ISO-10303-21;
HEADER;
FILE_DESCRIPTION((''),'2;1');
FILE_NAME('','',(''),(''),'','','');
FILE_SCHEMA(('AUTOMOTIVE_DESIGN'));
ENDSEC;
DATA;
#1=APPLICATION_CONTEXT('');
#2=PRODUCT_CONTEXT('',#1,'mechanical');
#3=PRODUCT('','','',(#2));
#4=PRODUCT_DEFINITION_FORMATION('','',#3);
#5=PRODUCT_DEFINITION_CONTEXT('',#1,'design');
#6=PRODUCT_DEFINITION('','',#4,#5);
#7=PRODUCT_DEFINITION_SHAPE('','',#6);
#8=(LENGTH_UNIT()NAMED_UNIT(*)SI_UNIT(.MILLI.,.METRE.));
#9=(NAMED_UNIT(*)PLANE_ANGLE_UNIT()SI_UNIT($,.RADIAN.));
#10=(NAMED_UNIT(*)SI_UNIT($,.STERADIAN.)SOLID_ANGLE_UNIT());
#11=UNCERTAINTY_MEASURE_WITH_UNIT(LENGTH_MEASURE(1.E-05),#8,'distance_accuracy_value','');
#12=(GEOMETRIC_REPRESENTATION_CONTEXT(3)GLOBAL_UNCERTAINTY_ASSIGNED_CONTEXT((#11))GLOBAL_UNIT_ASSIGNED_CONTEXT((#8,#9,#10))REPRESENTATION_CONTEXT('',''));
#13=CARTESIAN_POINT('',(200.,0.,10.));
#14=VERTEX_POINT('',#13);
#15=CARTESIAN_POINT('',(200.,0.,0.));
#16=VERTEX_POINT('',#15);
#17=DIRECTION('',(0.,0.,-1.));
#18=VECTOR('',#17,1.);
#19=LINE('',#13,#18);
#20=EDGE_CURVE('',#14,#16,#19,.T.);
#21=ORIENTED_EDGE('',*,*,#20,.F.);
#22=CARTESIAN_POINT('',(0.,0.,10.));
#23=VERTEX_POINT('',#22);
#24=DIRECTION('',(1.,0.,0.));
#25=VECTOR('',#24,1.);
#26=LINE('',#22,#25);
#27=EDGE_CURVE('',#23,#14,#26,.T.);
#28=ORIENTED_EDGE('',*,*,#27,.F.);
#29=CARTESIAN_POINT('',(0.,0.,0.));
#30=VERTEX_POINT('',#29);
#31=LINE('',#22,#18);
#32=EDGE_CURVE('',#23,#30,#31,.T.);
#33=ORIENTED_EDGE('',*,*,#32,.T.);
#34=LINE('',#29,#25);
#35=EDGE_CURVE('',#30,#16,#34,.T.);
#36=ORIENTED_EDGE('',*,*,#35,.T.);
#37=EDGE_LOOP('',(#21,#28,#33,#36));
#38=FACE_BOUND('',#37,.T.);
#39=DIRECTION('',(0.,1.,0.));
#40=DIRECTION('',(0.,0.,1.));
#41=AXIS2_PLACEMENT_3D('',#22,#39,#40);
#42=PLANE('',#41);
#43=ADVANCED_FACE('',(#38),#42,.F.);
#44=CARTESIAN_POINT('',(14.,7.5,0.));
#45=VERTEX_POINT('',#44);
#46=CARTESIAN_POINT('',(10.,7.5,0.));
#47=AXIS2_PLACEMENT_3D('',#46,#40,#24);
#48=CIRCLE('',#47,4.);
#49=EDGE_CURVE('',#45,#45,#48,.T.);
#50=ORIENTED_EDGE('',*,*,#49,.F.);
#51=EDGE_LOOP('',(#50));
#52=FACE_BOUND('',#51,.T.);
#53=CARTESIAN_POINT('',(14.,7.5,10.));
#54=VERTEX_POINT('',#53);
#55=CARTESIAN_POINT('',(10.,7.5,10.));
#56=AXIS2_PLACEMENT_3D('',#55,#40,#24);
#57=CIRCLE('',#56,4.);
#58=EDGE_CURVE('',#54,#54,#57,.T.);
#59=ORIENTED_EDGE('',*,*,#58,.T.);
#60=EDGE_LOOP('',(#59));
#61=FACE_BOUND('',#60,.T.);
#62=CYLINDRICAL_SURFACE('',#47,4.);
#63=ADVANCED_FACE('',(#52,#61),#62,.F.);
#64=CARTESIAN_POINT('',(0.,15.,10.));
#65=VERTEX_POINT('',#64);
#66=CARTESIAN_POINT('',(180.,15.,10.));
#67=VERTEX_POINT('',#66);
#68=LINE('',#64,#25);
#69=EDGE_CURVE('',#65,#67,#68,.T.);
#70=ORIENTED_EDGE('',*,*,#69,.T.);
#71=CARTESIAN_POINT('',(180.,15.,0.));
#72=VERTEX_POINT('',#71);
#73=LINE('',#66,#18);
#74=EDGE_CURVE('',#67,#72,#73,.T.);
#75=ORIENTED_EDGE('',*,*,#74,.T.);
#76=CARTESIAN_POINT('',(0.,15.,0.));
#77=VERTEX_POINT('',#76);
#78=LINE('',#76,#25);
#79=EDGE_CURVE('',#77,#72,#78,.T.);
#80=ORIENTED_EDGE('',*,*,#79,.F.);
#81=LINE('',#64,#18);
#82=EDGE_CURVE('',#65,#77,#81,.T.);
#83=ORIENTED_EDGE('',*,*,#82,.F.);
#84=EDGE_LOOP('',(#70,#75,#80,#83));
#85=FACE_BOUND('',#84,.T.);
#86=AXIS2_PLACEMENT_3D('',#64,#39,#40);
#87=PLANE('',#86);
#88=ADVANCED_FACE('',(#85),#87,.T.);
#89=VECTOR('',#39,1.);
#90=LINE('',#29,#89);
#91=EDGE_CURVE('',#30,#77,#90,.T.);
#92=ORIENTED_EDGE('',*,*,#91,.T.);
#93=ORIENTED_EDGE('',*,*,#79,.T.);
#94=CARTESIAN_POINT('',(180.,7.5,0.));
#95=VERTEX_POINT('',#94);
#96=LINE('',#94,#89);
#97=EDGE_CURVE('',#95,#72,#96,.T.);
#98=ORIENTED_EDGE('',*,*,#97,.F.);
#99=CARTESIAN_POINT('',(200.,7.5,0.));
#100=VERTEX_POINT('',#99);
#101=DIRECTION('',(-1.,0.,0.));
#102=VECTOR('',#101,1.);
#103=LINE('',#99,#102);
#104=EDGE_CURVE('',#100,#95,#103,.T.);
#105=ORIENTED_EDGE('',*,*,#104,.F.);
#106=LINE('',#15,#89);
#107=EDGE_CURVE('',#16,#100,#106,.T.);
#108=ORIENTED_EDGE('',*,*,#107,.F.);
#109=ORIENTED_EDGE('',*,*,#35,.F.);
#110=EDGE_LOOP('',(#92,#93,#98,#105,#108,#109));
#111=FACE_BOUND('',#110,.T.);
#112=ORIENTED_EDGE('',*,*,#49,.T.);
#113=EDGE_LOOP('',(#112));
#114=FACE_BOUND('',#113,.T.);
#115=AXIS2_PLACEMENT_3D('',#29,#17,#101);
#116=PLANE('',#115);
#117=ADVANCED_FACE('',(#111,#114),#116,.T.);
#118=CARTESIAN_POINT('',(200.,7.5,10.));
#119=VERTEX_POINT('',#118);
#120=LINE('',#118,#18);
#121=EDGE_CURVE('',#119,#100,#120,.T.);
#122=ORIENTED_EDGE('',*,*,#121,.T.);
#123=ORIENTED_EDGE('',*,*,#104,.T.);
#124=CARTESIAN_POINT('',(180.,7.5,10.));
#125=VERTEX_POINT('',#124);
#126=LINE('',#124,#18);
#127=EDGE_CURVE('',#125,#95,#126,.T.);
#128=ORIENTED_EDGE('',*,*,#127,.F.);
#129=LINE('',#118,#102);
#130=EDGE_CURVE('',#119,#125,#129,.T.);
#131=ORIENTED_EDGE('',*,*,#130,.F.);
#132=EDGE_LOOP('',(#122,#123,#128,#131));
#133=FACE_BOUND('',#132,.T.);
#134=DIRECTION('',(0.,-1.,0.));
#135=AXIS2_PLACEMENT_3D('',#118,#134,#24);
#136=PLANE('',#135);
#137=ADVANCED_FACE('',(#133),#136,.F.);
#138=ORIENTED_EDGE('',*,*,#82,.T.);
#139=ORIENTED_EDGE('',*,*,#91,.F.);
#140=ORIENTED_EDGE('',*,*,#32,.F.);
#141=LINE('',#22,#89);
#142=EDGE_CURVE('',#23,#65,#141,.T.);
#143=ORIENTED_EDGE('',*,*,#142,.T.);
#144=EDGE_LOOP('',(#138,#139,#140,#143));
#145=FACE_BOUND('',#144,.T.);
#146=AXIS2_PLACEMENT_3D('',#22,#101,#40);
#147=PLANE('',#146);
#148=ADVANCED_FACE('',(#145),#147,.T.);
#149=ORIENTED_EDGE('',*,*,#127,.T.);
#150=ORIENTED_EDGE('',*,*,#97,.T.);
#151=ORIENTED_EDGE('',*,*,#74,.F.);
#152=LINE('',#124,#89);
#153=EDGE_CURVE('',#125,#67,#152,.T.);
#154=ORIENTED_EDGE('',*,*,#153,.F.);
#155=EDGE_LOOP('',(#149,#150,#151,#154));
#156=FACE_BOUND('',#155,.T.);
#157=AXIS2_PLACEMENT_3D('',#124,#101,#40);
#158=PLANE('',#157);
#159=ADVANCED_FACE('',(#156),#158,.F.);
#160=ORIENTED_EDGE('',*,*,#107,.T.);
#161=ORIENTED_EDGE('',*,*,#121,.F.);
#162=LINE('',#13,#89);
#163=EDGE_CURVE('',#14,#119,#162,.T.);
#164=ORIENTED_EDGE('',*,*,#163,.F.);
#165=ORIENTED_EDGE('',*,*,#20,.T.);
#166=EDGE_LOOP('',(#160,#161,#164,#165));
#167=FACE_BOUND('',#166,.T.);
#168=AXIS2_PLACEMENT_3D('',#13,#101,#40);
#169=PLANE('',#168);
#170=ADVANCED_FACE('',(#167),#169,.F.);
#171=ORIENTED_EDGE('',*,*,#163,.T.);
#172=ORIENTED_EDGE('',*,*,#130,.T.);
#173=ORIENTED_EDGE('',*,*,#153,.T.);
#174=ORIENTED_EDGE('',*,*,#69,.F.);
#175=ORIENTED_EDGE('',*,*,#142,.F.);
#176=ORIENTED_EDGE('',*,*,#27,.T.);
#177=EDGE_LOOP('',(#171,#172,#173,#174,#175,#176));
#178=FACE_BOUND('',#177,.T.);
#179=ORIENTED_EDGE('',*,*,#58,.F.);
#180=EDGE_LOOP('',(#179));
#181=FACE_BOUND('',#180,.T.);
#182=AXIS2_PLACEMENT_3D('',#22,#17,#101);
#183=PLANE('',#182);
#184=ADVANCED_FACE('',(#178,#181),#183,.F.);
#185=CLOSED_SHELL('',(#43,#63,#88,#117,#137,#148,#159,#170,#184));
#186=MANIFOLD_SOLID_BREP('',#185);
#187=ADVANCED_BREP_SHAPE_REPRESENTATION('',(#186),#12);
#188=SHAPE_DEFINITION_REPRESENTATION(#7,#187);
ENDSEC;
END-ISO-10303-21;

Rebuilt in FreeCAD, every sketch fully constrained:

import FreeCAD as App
import Part
import Sketcher

V = App.Vector

doc = App.newDocument("Part")
body = doc.addObject("PartDesign::Body", "Body")

# Sketch on XY plane
sketch1 = body.newObject("Sketcher::SketchObject", "Sketch")
sketch1.AttachmentSupport = (doc.getObject("XY_Plane"), [""])
sketch1.MapMode = "FlatFace"
sketch1.addGeometry([
    Part.LineSegment(V(200, 7.5, 0), V(180, 7.5, 0)),  # 0
    Part.LineSegment(V(180, 7.5, 0), V(180, 15, 0)),  # 1
    Part.LineSegment(V(180, 15, 0), V(0, 15, 0)),  # 2
    Part.LineSegment(V(0, 15, 0), V(0, 0, 0)),  # 3
    Part.LineSegment(V(0, 0, 0), V(200, 0, 0)),  # 4
    Part.LineSegment(V(200, 0, 0), V(200, 7.5, 0)),  # 5
], False)
sketch1.addConstraint([
    Sketcher.Constraint("Coincident", 0, 2, 1, 1),
    Sketcher.Constraint("Coincident", 1, 2, 2, 1),
    Sketcher.Constraint("Coincident", 2, 2, 3, 1),
    Sketcher.Constraint("Coincident", 3, 2, 4, 1),
    Sketcher.Constraint("Coincident", 4, 2, 5, 1),
    Sketcher.Constraint("Coincident", 5, 2, 0, 1),
    Sketcher.Constraint("Horizontal", 0),
    Sketcher.Constraint("Vertical", 1),
    Sketcher.Constraint("Horizontal", 2),
    Sketcher.Constraint("Vertical", 3),
    Sketcher.Constraint("Horizontal", 4),
    Sketcher.Constraint("Vertical", 5),
    Sketcher.Constraint("Coincident", 3, 2, -1, 1),
    Sketcher.Constraint("Equal", 1, 5),
    Sketcher.Constraint("DistanceX", 0, 2, 0, 1, 20.0),
    Sketcher.Constraint("DistanceX", 2, 2, 2, 1, 180.0),
    Sketcher.Constraint("DistanceY", 3, 2, 3, 1, 15.0),
])
pad1 = body.newObject("PartDesign::Pad", "Pad")
pad1.Profile = sketch1
pad1.Length = 10

# Sketch on XY plane
sketch2 = body.newObject("Sketcher::SketchObject", "Sketch001")
sketch2.AttachmentSupport = (doc.getObject("XY_Plane"), [""])
sketch2.MapMode = "FlatFace"
sketch2.AttachmentOffset = App.Placement(V(0, 0, 10), App.Rotation())
sketch2.addGeometry(Part.Circle(V(10, 7.5, 0), V(0, 0, 1), 4), False)
sketch2.addConstraint([
    Sketcher.Constraint("Diameter", 0, 8.0),
    Sketcher.Constraint("DistanceX", -1, 1, 0, 3, 10.0),
    Sketcher.Constraint("DistanceY", -1, 1, 0, 3, 7.5),
])
pocket1 = body.newObject("PartDesign::Pocket", "Pocket")
pocket1.Profile = sketch2
pocket1.Length = 10

doc.recompute()
